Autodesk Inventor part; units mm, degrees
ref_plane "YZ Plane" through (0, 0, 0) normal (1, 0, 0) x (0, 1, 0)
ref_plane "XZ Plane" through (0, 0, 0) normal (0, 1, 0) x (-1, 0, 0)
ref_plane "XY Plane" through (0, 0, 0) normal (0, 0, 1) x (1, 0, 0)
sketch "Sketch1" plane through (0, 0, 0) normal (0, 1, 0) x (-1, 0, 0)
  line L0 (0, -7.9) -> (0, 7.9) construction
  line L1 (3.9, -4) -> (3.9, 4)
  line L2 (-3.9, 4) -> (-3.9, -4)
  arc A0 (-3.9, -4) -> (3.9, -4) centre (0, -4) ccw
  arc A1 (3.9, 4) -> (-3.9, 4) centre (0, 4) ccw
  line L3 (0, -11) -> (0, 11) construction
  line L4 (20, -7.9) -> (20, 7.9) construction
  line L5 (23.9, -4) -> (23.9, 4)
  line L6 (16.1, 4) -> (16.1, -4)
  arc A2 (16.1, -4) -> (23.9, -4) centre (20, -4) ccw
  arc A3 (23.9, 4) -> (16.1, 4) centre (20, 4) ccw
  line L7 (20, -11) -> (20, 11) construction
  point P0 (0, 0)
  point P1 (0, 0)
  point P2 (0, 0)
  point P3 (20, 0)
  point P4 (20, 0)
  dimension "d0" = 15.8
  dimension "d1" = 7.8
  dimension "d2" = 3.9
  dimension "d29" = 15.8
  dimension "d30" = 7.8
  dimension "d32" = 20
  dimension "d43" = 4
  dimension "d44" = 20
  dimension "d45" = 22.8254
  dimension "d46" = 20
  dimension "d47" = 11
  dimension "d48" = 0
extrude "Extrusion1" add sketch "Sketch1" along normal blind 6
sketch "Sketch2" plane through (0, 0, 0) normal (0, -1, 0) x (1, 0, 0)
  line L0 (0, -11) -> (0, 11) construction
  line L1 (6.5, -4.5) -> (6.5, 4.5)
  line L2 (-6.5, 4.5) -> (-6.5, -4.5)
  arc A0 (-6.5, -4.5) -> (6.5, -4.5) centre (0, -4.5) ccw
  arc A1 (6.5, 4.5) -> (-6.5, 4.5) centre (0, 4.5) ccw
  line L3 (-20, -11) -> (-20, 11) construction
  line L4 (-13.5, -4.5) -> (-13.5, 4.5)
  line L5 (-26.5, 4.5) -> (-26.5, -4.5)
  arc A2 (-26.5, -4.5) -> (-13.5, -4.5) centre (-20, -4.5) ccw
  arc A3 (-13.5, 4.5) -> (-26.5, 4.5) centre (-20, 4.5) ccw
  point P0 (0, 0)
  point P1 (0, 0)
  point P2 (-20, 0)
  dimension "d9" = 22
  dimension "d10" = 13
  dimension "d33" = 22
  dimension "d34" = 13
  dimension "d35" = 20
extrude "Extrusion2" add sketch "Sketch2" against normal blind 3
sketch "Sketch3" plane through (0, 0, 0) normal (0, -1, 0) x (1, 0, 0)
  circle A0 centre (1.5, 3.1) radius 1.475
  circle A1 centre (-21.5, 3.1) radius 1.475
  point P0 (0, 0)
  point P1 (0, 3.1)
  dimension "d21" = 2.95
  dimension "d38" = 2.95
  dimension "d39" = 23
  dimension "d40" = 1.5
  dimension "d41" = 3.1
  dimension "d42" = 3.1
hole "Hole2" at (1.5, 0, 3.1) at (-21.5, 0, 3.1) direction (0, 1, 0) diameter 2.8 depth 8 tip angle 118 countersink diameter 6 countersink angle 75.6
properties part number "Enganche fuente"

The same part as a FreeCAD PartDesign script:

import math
import FreeCAD as App
import Part
import Sketcher
Q = App.Units.Quantity

doc = App.newDocument("Part")
params = doc.addObject("Spreadsheet::Sheet", "Params")
for row, (alias, value) in enumerate([
    ("sketch1_radius", "3.9 mm"),
    ("pad1_length", "6 mm"),
    ("sketch2_radius", "6.5 mm"),
    ("sketch2_height", "9 mm"),
    ("pad2_length", "3 mm"),
    ("sketch3_diameter", "2.8 mm"),
    ("hole_diameter", "2.8 mm"),
    ("hole_depth", "8 mm"),
    ("hole_csink_diameter", "6 mm"),
], start=1):
    params.set(f"A{row}", alias)
    params.set(f"B{row}", "=" + value)
    params.setAlias(f"B{row}", alias)

body = doc.addObject("PartDesign::Body", "Body")
body.AllowCompound = True

# Sketch on XZ plane
sketch1 = body.newObject("Sketcher::SketchObject", "Sketch")
sketch1.AttachmentSupport = (doc.getObject("XZ_Plane"), [""])
sketch1.MapMode = "FlatFace"
sketch1.addGeometry(Part.ArcOfCircle(Part.Circle(App.Vector(0, -4, 0), App.Vector(0, 0, 1), 3.9), math.radians(180), math.radians(360)), False)
sketch1.addGeometry(Part.LineSegment(App.Vector(-3.9, -4, 0), App.Vector(-3.9, 4, 0)), False)
sketch1.addGeometry(Part.ArcOfCircle(Part.Circle(App.Vector(0, 4, 0), App.Vector(0, 0, 1), 3.9), math.radians(0), math.radians(180)), False)
sketch1.addGeometry(Part.LineSegment(App.Vector(3.9, 4, 0), App.Vector(3.9, -4, 0)), False)
sketch1.addGeometry(Part.ArcOfCircle(Part.Circle(App.Vector(-20, -4, 0), App.Vector(0, 0, 1), 3.9), math.radians(180), math.radians(360)), False)
sketch1.addGeometry(Part.LineSegment(App.Vector(-23.9, -4, 0), App.Vector(-23.9, 4, 0)), False)
sketch1.addGeometry(Part.ArcOfCircle(Part.Circle(App.Vector(-20, 4, 0), App.Vector(0, 0, 1), 3.9), math.radians(0), math.radians(180)), False)
sketch1.addGeometry(Part.LineSegment(App.Vector(-16.1, 4, 0), App.Vector(-16.1, -4, 0)), False)
sketch1.addConstraint(Sketcher.Constraint("Tangent", 0, 1, 1, 1))
sketch1.addConstraint(Sketcher.Constraint("Tangent", 1, 2, 2, 2))
sketch1.addConstraint(Sketcher.Constraint("Tangent", 2, 1, 3, 1))
sketch1.addConstraint(Sketcher.Constraint("Tangent", 3, 2, 0, 2))
sketch1.addConstraint(Sketcher.Constraint("Tangent", 4, 1, 5, 1))
sketch1.addConstraint(Sketcher.Constraint("Tangent", 5, 2, 6, 2))
sketch1.addConstraint(Sketcher.Constraint("Tangent", 6, 1, 7, 1))
sketch1.addConstraint(Sketcher.Constraint("Tangent", 7, 2, 4, 2))
sketch1.addConstraint(Sketcher.Constraint("Vertical", 1))
sketch1.addConstraint(Sketcher.Constraint("Vertical", 3))
sketch1.addConstraint(Sketcher.Constraint("Vertical", 5))
sketch1.addConstraint(Sketcher.Constraint("Vertical", 7))
sketch1.addConstraint(Sketcher.Constraint("Equal", 2, 4))
sketch1.addConstraint(Sketcher.Constraint("Symmetric", 0, 3, 2, 3, -1, 1))
sketch1.addConstraint(Sketcher.Constraint("Horizontal", 0, 3, 4, 3))
sketch1.addConstraint(Sketcher.Constraint("Horizontal", 2, 3, 6, 3))
sketch1.addConstraint(Sketcher.Constraint("Radius", 0, Q("3.9 mm")))
sketch1.addConstraint(Sketcher.Constraint("DistanceY", 0, 3, -1, 1, Q("4 mm")))
sketch1.addConstraint(Sketcher.Constraint("DistanceX", 4, 3, -1, 1, Q("20 mm")))
sketch1.setExpression("Constraints[16]", "Params.sketch1_radius")
pad1 = body.newObject("PartDesign::Pad", "Pad")
pad1.Profile = sketch1
pad1.setExpression("Length", "Params.pad1_length")
pad1.Reversed = True

# Sketch on XZ plane
sketch2 = body.newObject("Sketcher::SketchObject", "Sketch001")
sketch2.AttachmentSupport = (doc.getObject("XZ_Plane"), [""])
sketch2.MapMode = "FlatFace"
sketch2.addGeometry(Part.ArcOfCircle(Part.Circle(App.Vector(0, -4, 0), App.Vector(0, 0, 1), 6), math.radians(180), math.radians(360)), False)
sketch2.addGeometry(Part.LineSegment(App.Vector(6, -4, 0), App.Vector(6, 4, 0)), False)
sketch2.addGeometry(Part.ArcOfCircle(Part.Circle(App.Vector(0, 4, 0), App.Vector(0, 0, 1), 6), math.radians(0), math.radians(180)), False)
sketch2.addGeometry(Part.LineSegment(App.Vector(-6, 4, 0), App.Vector(-6, -4, 0)), False)
sketch2.addGeometry(Part.ArcOfCircle(Part.Circle(App.Vector(-20, -4, 0), App.Vector(0, 0, 1), 6), math.radians(180), math.radians(360)), False)
sketch2.addGeometry(Part.LineSegment(App.Vector(-14, -4, 0), App.Vector(-14, 4, 0)), False)
sketch2.addGeometry(Part.ArcOfCircle(Part.Circle(App.Vector(-20, 4, 0), App.Vector(0, 0, 1), 6), math.radians(0), math.radians(180)), False)
sketch2.addGeometry(Part.LineSegment(App.Vector(-26, 4, 0), App.Vector(-26, -4, 0)), False)
sketch2.addConstraint(Sketcher.Constraint("Tangent", 0, 2, 1, 1))
sketch2.addConstraint(Sketcher.Constraint("Tangent", 1, 2, 2, 1))
sketch2.addConstraint(Sketcher.Constraint("Tangent", 2, 2, 3, 1))
sketch2.addConstraint(Sketcher.Constraint("Tangent", 3, 2, 0, 1))
sketch2.addConstraint(Sketcher.Constraint("Tangent", 4, 2, 5, 1))
sketch2.addConstraint(Sketcher.Constraint("Tangent", 5, 2, 6, 1))
sketch2.addConstraint(Sketcher.Constraint("Tangent", 6, 2, 7, 1))
sketch2.addConstraint(Sketcher.Constraint("Tangent", 7, 2, 4, 1))
sketch2.addConstraint(Sketcher.Constraint("Vertical", 1))
sketch2.addConstraint(Sketcher.Constraint("Vertical", 3))
sketch2.addConstraint(Sketcher.Constraint("Vertical", 5))
sketch2.addConstraint(Sketcher.Constraint("Vertical", 7))
sketch2.addConstraint(Sketcher.Constraint("Equal", 2, 4))
sketch2.addConstraint(Sketcher.Constraint("Symmetric", 0, 3, 2, 3, -1, 1))
sketch2.addConstraint(Sketcher.Constraint("Horizontal", 0, 3, 4, 3))
sketch2.addConstraint(Sketcher.Constraint("Horizontal", 2, 3, 6, 3))
sketch2.addConstraint(Sketcher.Constraint("Radius", 0, Q("6.5 mm")))
sketch2.addConstraint(Sketcher.Constraint("DistanceX", 4, 3, -1, 1, Q("20 mm")))
sketch2.addConstraint(Sketcher.Constraint("DistanceY", 1, 1, 1, 2, Q("9 mm")))
sketch2.setExpression("Constraints[16]", "Params.sketch2_radius")
sketch2.setExpression("Constraints[18]", "Params.sketch2_height")
pad2 = body.newObject("PartDesign::Pad", "Pad001")
pad2.Profile = sketch2
pad2.setExpression("Length", "Params.pad2_length")
pad2.Reversed = True

# Sketch on XZ plane
sketch3 = body.newObject("Sketcher::SketchObject", "Sketch002")
sketch3.AttachmentSupport = (doc.getObject("XZ_Plane"), [""])
sketch3.MapMode = "FlatFace"
sketch3.addGeometry(Part.Circle(App.Vector(1.5, 3.1, 0), App.Vector(0, 0, 1), 1.4), False)
sketch3.addGeometry(Part.Circle(App.Vector(-21.5, 3.1, 0), App.Vector(0, 0, 1), 1.4), False)
sketch3.addConstraint(Sketcher.Constraint("Equal", 0, 1))
sketch3.addConstraint(Sketcher.Constraint("Horizontal", 0, 3, 1, 3))
sketch3.addConstraint(Sketcher.Constraint("Diameter", 0, Q("2.8 mm")))
sketch3.addConstraint(Sketcher.Constraint("DistanceX", 1, 3, 0, 3, Q("23 mm")))
sketch3.addConstraint(Sketcher.Constraint("DistanceX", -1, 1, 0, 3, Q("1.5 mm")))
sketch3.addConstraint(Sketcher.Constraint("DistanceY", -1, 1, 0, 3, Q("3.1 mm")))
sketch3.setExpression("Constraints[2]", "Params.sketch3_diameter")
doc.recompute()
hole = body.newObject("PartDesign::Hole", "Hole")
hole.Profile = sketch3
hole.ThreadType = "None"
hole.setExpression("Diameter", "Params.hole_diameter")
hole.DepthType = "Dimension"
hole.setExpression("Depth", "Params.hole_depth")
hole.DrillPoint = "Angled"
hole.DrillPointAngle = 118
hole.HoleCutType = "Countersink"
hole.setExpression("HoleCutDiameter", "Params.hole_csink_diameter")
hole.HoleCutCountersinkAngle = 75.6

doc.recompute()
